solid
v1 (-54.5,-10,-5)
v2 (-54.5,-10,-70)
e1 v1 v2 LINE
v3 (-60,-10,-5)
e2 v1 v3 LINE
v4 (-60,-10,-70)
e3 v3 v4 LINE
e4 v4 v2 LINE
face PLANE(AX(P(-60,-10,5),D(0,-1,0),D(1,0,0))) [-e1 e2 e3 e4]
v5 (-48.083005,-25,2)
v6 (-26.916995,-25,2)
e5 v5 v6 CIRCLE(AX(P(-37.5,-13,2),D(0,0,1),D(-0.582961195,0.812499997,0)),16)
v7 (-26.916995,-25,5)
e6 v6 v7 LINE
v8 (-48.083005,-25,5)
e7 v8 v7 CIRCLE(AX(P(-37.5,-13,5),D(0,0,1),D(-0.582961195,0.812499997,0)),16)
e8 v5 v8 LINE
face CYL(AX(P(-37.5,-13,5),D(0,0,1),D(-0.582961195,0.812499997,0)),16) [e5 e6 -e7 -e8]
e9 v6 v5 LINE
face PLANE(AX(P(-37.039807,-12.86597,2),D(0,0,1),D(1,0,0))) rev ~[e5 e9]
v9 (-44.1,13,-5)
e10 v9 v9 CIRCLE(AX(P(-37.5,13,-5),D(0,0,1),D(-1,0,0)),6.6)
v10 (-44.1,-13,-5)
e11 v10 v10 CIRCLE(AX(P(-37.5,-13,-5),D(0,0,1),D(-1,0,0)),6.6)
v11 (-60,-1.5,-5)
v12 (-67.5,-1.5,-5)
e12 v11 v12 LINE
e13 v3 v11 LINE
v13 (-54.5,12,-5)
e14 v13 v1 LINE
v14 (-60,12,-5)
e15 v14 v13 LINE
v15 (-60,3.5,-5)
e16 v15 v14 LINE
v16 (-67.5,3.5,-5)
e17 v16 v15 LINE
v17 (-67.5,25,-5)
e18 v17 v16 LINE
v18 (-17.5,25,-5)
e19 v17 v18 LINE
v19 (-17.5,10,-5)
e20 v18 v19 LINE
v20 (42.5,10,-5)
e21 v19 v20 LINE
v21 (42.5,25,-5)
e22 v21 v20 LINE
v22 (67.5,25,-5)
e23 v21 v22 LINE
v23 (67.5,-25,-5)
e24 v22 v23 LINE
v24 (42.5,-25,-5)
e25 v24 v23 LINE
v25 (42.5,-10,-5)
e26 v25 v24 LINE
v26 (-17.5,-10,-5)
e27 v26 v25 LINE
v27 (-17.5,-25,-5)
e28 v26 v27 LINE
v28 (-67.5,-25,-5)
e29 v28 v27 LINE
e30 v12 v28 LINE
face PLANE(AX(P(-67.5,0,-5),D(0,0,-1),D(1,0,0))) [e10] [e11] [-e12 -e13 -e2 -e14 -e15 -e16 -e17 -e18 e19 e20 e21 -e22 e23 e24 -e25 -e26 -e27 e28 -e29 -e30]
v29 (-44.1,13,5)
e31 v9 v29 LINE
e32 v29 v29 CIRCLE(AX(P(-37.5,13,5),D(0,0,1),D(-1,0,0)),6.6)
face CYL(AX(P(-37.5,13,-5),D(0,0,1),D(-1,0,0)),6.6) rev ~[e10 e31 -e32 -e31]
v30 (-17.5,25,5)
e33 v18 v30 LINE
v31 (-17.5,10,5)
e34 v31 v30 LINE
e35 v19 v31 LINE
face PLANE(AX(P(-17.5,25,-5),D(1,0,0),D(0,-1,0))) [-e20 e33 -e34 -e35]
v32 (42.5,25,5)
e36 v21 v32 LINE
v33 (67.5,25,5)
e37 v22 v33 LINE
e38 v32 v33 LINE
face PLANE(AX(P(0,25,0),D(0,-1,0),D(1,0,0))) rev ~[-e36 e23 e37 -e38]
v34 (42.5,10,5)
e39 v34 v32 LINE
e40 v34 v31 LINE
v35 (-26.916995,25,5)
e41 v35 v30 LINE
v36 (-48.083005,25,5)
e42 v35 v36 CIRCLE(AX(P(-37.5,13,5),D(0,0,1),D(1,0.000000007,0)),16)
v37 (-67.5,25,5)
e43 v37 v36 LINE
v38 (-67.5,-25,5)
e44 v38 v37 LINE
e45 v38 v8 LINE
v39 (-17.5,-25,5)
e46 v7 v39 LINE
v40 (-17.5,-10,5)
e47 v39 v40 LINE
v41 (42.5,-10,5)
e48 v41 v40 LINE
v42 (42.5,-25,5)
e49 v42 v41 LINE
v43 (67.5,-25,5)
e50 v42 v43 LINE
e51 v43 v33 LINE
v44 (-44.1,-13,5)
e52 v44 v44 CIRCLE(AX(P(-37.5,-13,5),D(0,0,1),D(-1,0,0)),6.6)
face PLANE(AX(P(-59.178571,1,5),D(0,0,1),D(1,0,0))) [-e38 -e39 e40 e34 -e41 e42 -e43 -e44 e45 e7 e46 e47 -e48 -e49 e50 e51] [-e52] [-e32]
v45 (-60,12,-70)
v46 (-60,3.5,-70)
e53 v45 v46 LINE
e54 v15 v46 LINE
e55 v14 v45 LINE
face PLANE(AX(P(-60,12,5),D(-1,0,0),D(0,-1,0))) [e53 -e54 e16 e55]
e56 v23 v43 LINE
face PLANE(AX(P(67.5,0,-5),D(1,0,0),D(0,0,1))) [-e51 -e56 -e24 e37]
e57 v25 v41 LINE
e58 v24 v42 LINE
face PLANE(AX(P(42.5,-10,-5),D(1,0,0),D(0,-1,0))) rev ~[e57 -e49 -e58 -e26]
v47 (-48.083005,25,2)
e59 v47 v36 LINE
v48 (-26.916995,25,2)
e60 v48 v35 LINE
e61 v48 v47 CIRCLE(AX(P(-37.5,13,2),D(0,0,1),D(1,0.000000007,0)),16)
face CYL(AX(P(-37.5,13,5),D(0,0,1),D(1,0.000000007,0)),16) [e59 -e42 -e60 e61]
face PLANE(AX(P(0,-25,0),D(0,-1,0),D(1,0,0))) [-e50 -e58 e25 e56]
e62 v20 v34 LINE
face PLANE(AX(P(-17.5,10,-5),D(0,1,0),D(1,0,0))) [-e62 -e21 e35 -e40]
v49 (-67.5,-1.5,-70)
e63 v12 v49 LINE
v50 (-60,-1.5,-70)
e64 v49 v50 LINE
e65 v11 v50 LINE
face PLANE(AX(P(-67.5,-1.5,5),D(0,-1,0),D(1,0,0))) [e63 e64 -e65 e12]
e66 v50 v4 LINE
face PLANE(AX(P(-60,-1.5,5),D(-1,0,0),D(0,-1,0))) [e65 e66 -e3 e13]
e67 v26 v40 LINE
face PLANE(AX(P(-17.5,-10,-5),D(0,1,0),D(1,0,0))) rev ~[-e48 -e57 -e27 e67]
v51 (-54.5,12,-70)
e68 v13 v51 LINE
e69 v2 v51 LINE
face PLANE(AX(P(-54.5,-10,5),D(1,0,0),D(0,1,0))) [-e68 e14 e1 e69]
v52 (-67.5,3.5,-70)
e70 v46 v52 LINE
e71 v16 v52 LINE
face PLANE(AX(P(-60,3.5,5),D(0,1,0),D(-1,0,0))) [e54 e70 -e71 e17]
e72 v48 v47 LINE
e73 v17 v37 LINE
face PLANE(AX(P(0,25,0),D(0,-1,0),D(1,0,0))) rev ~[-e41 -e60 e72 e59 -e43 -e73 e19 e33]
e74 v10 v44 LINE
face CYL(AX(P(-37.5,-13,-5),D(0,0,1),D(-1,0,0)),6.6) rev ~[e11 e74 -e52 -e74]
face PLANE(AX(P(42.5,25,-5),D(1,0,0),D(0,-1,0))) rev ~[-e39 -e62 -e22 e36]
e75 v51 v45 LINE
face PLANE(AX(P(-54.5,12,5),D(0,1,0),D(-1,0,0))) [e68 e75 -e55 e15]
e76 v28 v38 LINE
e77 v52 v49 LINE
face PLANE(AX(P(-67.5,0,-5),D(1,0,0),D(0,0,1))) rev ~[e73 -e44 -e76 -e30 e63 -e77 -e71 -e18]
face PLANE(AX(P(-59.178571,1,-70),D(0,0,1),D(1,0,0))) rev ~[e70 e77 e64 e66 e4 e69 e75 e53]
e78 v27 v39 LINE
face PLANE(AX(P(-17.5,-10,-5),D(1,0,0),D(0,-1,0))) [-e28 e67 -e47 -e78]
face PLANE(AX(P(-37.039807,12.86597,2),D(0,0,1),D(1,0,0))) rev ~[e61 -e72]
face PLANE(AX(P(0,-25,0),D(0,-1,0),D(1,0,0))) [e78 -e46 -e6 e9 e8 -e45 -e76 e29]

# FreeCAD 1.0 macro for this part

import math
import FreeCAD as App
import Part
import Sketcher
from FreeCAD import Vector

doc = App.newDocument("Part")
params = doc.addObject("Spreadsheet::Sheet", "Params")
for row, (alias, value) in enumerate([
    ("sketch1_width", "135 mm"),
    ("sketch1_height", "10 mm"),
    ("pad1_length", "50 mm"),
    ("sketch2_height", "5 mm"),
    ("sketch2_height2", "22 mm"),
    ("sketch2_width", "7.5 mm"),
    ("sketch2_width2", "5.5 mm"),
    ("pad2_length", "75 mm"),
    ("sketch3_radius", "16.000002 mm"),
    ("pad3_length", "3 mm"),
    ("sketch4_width", "60 mm"),
    ("sketch4_height", "15 mm"),
    ("pocket1_length", "25 mm"),
    ("sketch5_diameter", "13.2 mm"),
    ("hole_diameter", "13.2 mm"),
    ("hole_cbore_diameter", "23 mm"),
    ("hole_cbore_depth", "0 mm"),
], start=1):
    params.set(f"A{row}", alias)
    params.set(f"B{row}", "=" + value)
    params.setAlias(f"B{row}", alias)

body = doc.addObject("PartDesign::Body", "Body")

# Sketch on XZ plane
sketch1 = body.newObject("Sketcher::SketchObject", "Sketch")
sketch1.AttachmentSupport = (doc.getObject("XZ_Plane"), [""])
sketch1.MapMode = "FlatFace"
sketch1.addGeometry([
    Part.LineSegment(Vector(-67.5, 5, 0), Vector(-67.5, -5, 0)),
    Part.LineSegment(Vector(-67.5, -5, 0), Vector(67.5, -5, 0)),
    Part.LineSegment(Vector(67.5, -5, 0), Vector(67.5, 5, 0)),
    Part.LineSegment(Vector(67.5, 5, 0), Vector(-67.5, 5, 0)),
], False)
sketch1.addConstraint([
    Sketcher.Constraint("Coincident", 0, 2, 1, 1),
    Sketcher.Constraint("Coincident", 1, 2, 2, 1),
    Sketcher.Constraint("Coincident", 2, 2, 3, 1),
    Sketcher.Constraint("Coincident", 3, 2, 0, 1),
    Sketcher.Constraint("Vertical", 0),
    Sketcher.Constraint("Horizontal", 1),
    Sketcher.Constraint("Vertical", 2),
    Sketcher.Constraint("Horizontal", 3),
    Sketcher.Constraint("Symmetric", 0, 2, 2, 2, -1, 1),
    Sketcher.Constraint("DistanceX", 1, 1, 1, 2, 135.0),
    Sketcher.Constraint("DistanceY", 0, 2, 0, 1, 10.0),
])
sketch1.setExpression("Constraints[9]", "Params.sketch1_width")
sketch1.setExpression("Constraints[10]", "Params.sketch1_height")
pad1 = body.newObject("PartDesign::Pad", "Pad")
pad1.Profile = sketch1
pad1.setExpression("Length", "Params.pad1_length")
pad1.Midplane = True

# Sketch on XY plane
sketch2 = body.newObject("Sketcher::SketchObject", "Sketch001")
sketch2.AttachmentSupport = (doc.getObject("XY_Plane"), [""])
sketch2.MapMode = "FlatFace"
sketch2.AttachmentOffset = App.Placement(Vector(0, 0, 5), App.Rotation())
sketch2.addGeometry([
    Part.LineSegment(Vector(-60, 3.5, 0), Vector(-67.5, 3.5, 0)),  # 0
    Part.LineSegment(Vector(-67.5, 3.5, 0), Vector(-67.5, -1.5, 0)),  # 1
    Part.LineSegment(Vector(-67.5, -1.5, 0), Vector(-60, -1.5, 0)),  # 2
    Part.LineSegment(Vector(-60, -1.5, 0), Vector(-60, -10, 0)),  # 3
    Part.LineSegment(Vector(-60, -10, 0), Vector(-54.5, -10, 0)),  # 4
    Part.LineSegment(Vector(-54.5, -10, 0), Vector(-54.5, 12, 0)),  # 5
    Part.LineSegment(Vector(-54.5, 12, 0), Vector(-60, 12, 0)),  # 6
    Part.LineSegment(Vector(-60, 12, 0), Vector(-60, 3.5, 0)),  # 7
], False)
sketch2.addConstraint([
    Sketcher.Constraint("Coincident", 0, 2, 1, 1),
    Sketcher.Constraint("Coincident", 1, 2, 2, 1),
    Sketcher.Constraint("Coincident", 2, 2, 3, 1),
    Sketcher.Constraint("Coincident", 3, 2, 4, 1),
    Sketcher.Constraint("Coincident", 4, 2, 5, 1),
    Sketcher.Constraint("Coincident", 5, 2, 6, 1),
    Sketcher.Constraint("Coincident", 6, 2, 7, 1),
    Sketcher.Constraint("Coincident", 7, 2, 0, 1),
    Sketcher.Constraint("Horizontal", 0),
    Sketcher.Constraint("Vertical", 1),
    Sketcher.Constraint("Horizontal", 2),
    Sketcher.Constraint("Vertical", 3),
    Sketcher.Constraint("Horizontal", 4),
    Sketcher.Constraint("Vertical", 5),
    Sketcher.Constraint("Horizontal", 6),
    Sketcher.Constraint("Vertical", 7),
    Sketcher.Constraint("Vertical", 3, 2, 6, 2),
    Sketcher.Constraint("Equal", 3, 7),
    Sketcher.Constraint("DistanceY", 1, 2, 1, 1, 5.0),
    Sketcher.Constraint("DistanceY", 5, 1, 5, 2, 22.0),
    Sketcher.Constraint("DistanceX", 0, 2, 0, 1, 7.5),
    Sketcher.Constraint("DistanceX", 4, 1, 4, 2, 5.5),
    Sketcher.Constraint("DistanceX", 2, 2, -1, 1, 60.0),
    Sketcher.Constraint("DistanceY", 3, 2, -1, 1, 10.0),
])
sketch2.setExpression("Constraints[18]", "Params.sketch2_height")
sketch2.setExpression("Constraints[19]", "Params.sketch2_height2")
sketch2.setExpression("Constraints[20]", "Params.sketch2_width")
sketch2.setExpression("Constraints[21]", "Params.sketch2_width2")
pad2 = body.newObject("PartDesign::Pad", "Pad001")
pad2.Profile = sketch2
pad2.setExpression("Length", "Params.pad2_length")
pad2.Reversed = True

# Sketch on XY plane
sketch3 = body.newObject("Sketcher::SketchObject", "Sketch002")
sketch3.AttachmentSupport = (doc.getObject("XY_Plane"), [""])
sketch3.MapMode = "FlatFace"
sketch3.AttachmentOffset = App.Placement(Vector(0, 0, 5), App.Rotation())
sketch3.addGeometry([
    Part.ArcOfCircle(Part.Circle(Vector(-37.500002, 13.000001, 0), Vector(0, 0, 1), 16.000002), math.radians(-54.34091), math.radians(-0.000003)),  # 0
    Part.ArcOfCircle(Part.Circle(Vector(-37.5, 13, 0), Vector(0, 0, 1), 16), math.radians(0), math.radians(234.340912)),  # 1
    Part.ArcOfCircle(Part.Circle(Vector(-37.5, -13, 0), Vector(0, 0, 1), 16), math.radians(54.340912), math.radians(125.659088)),  # 2
    Part.ArcOfCircle(Part.Circle(Vector(-37.5, 13, 0), Vector(0, 0, 1), 16), math.radians(-125.659088), math.radians(-54.340912)),  # 3
    Part.ArcOfCircle(Part.Circle(Vector(-37.5, -13, 0), Vector(0, 0, 1), 16), math.radians(125.659088), math.radians(360)),  # 4
    Part.ArcOfCircle(Part.Circle(Vector(-37.500002, -13.000001, 0), Vector(0, 0, 1), 16.000002), math.radians(0.000003), math.radians(54.34091)),  # 5
], False)
sketch3.addConstraint([
    Sketcher.Constraint("Tangent", 0, 2, 1, 1),
    Sketcher.Constraint("Coincident", 1, 2, 2, 2),
    Sketcher.Constraint("Coincident", 2, 1, 0, 1),
    Sketcher.Constraint("Coincident", 3, 1, 4, 1),
    Sketcher.Constraint("Tangent", 4, 2, 5, 1),
    Sketcher.Constraint("Coincident", 5, 2, 3, 2),
    Sketcher.Constraint("Coincident", 3, 3, 0, 3),
    Sketcher.Constraint("Coincident", 4, 3, 2, 3),
    Sketcher.Constraint("Coincident", 3, 1, 1, 2),
    Sketcher.Constraint("Coincident", 5, 2, 2, 1),
    Sketcher.Constraint("Equal", 1, 2),
    Sketcher.Constraint("Symmetric", 0, 3, 2, 3, -1),
    Sketcher.Constraint("Horizontal", 3, 3, 0, 2),
    Sketcher.Constraint("Horizontal", 5, 3, 4, 2),
    Sketcher.Constraint("Radius", 0, 16.000002),
    Sketcher.Constraint("DistanceY", -1, 1, 0, 3, 13.000001),
    Sketcher.Constraint("DistanceX", 0, 3, -1, 1, 37.500002),
])
sketch3.setExpression("Constraints[14]", "Params.sketch3_radius")
pad3 = body.newObject("PartDesign::Pad", "Pad002")
pad3.Profile = sketch3
pad3.setExpression("Length", "Params.pad3_length")
pad3.Reversed = True

# Sketch on XY plane
sketch4 = body.newObject("Sketcher::SketchObject", "Sketch003")
sketch4.AttachmentSupport = (doc.getObject("XY_Plane"), [""])
sketch4.MapMode = "FlatFace"
sketch4.AttachmentOffset = App.Placement(Vector(0, 0, -5), App.Rotation())
sketch4.addGeometry([
    Part.LineSegment(Vector(-17.5, -25, 0), Vector(-17.5, -10, 0)),  # 0
    Part.LineSegment(Vector(-17.5, -10, 0), Vector(42.5, -10, 0)),  # 1
    Part.LineSegment(Vector(42.5, -10, 0), Vector(42.5, -25, 0)),  # 2
    Part.LineSegment(Vector(42.5, -25, 0), Vector(-17.5, -25, 0)),  # 3
    Part.LineSegment(Vector(-17.5, 10, 0), Vector(-17.5, 25, 0)),  # 4
    Part.LineSegment(Vector(-17.5, 25, 0), Vector(42.5, 25, 0)),  # 5
    Part.LineSegment(Vector(42.5, 25, 0), Vector(42.5, 10, 0)),  # 6
    Part.LineSegment(Vector(42.5, 10, 0), Vector(-17.5, 10, 0)),  # 7
], False)
sketch4.addConstraint([
    Sketcher.Constraint("Coincident", 0, 2, 1, 1),
    Sketcher.Constraint("Coincident", 1, 2, 2, 1),
    Sketcher.Constraint("Coincident", 2, 2, 3, 1),
    Sketcher.Constraint("Coincident", 3, 2, 0, 1),
    Sketcher.Constraint("Coincident", 4, 2, 5, 1),
    Sketcher.Constraint("Coincident", 5, 2, 6, 1),
    Sketcher.Constraint("Coincident", 6, 2, 7, 1),
    Sketcher.Constraint("Coincident", 7, 2, 4, 1),
    Sketcher.Constraint("Vertical", 0),
    Sketcher.Constraint("Horizontal", 1),
    Sketcher.Constraint("Vertical", 2),
    Sketcher.Constraint("Horizontal", 3),
    Sketcher.Constraint("Vertical", 4),
    Sketcher.Constraint("Horizontal", 5),
    Sketcher.Constraint("Vertical", 6),
    Sketcher.Constraint("Horizontal", 7),
    Sketcher.Constraint("Symmetric", 3, 2, 4, 2, -1),
    Sketcher.Constraint("Symmetric", 1, 2, 6, 2, -1),
    Sketcher.Constraint("DistanceX", 1, 1, 1, 2, 60.0),
    Sketcher.Constraint("DistanceY", 0, 1, 0, 2, 15.0),
    Sketcher.Constraint("DistanceY", 0, 2, -1, 1, 10.0),
    Sketcher.Constraint("DistanceX", 0, 2, -1, 1, 17.5),
])
sketch4.setExpression("Constraints[18]", "Params.sketch4_width")
sketch4.setExpression("Constraints[19]", "Params.sketch4_height")
pocket1 = body.newObject("PartDesign::Pocket", "Pocket")
pocket1.Profile = sketch4
pocket1.setExpression("Length", "Params.pocket1_length")
pocket1.Reversed = True

# Sketch on XY plane
sketch5 = body.newObject("Sketcher::SketchObject", "Sketch004")
sketch5.AttachmentSupport = (doc.getObject("XY_Plane"), [""])
sketch5.MapMode = "FlatFace"
sketch5.AttachmentOffset = App.Placement(Vector(0, 0, -5), App.Rotation())
sketch5.addGeometry([
    Part.Circle(Vector(-37.5, -13, 0), Vector(0, 0, 1), 6.6),
    Part.Circle(Vector(-37.5, 13, 0), Vector(0, 0, 1), 6.6),
], False)
sketch5.addConstraint([
    Sketcher.Constraint("Equal", 0, 1),
    Sketcher.Constraint("Symmetric", 0, 3, 1, 3, -1),
    Sketcher.Constraint("Diameter", 0, 13.2),
    Sketcher.Constraint("DistanceY", 0, 3, -1, 1, 13.0),
    Sketcher.Constraint("DistanceX", 0, 3, -1, 1, 37.5),
])
sketch5.setExpression("Constraints[2]", "Params.sketch5_diameter")
doc.recompute()
hole = body.newObject("PartDesign::Hole", "Hole")
hole.Profile = sketch5
hole.ThreadType = "None"
hole.setExpression("Diameter", "Params.hole_diameter")
hole.DepthType = "ThroughAll"
hole.HoleCutType = "Counterbore"
hole.setExpression("HoleCutDiameter", "Params.hole_cbore_diameter")
hole.setExpression("HoleCutDepth", "Params.hole_cbore_depth")
hole.Reversed = True

doc.recompute()
